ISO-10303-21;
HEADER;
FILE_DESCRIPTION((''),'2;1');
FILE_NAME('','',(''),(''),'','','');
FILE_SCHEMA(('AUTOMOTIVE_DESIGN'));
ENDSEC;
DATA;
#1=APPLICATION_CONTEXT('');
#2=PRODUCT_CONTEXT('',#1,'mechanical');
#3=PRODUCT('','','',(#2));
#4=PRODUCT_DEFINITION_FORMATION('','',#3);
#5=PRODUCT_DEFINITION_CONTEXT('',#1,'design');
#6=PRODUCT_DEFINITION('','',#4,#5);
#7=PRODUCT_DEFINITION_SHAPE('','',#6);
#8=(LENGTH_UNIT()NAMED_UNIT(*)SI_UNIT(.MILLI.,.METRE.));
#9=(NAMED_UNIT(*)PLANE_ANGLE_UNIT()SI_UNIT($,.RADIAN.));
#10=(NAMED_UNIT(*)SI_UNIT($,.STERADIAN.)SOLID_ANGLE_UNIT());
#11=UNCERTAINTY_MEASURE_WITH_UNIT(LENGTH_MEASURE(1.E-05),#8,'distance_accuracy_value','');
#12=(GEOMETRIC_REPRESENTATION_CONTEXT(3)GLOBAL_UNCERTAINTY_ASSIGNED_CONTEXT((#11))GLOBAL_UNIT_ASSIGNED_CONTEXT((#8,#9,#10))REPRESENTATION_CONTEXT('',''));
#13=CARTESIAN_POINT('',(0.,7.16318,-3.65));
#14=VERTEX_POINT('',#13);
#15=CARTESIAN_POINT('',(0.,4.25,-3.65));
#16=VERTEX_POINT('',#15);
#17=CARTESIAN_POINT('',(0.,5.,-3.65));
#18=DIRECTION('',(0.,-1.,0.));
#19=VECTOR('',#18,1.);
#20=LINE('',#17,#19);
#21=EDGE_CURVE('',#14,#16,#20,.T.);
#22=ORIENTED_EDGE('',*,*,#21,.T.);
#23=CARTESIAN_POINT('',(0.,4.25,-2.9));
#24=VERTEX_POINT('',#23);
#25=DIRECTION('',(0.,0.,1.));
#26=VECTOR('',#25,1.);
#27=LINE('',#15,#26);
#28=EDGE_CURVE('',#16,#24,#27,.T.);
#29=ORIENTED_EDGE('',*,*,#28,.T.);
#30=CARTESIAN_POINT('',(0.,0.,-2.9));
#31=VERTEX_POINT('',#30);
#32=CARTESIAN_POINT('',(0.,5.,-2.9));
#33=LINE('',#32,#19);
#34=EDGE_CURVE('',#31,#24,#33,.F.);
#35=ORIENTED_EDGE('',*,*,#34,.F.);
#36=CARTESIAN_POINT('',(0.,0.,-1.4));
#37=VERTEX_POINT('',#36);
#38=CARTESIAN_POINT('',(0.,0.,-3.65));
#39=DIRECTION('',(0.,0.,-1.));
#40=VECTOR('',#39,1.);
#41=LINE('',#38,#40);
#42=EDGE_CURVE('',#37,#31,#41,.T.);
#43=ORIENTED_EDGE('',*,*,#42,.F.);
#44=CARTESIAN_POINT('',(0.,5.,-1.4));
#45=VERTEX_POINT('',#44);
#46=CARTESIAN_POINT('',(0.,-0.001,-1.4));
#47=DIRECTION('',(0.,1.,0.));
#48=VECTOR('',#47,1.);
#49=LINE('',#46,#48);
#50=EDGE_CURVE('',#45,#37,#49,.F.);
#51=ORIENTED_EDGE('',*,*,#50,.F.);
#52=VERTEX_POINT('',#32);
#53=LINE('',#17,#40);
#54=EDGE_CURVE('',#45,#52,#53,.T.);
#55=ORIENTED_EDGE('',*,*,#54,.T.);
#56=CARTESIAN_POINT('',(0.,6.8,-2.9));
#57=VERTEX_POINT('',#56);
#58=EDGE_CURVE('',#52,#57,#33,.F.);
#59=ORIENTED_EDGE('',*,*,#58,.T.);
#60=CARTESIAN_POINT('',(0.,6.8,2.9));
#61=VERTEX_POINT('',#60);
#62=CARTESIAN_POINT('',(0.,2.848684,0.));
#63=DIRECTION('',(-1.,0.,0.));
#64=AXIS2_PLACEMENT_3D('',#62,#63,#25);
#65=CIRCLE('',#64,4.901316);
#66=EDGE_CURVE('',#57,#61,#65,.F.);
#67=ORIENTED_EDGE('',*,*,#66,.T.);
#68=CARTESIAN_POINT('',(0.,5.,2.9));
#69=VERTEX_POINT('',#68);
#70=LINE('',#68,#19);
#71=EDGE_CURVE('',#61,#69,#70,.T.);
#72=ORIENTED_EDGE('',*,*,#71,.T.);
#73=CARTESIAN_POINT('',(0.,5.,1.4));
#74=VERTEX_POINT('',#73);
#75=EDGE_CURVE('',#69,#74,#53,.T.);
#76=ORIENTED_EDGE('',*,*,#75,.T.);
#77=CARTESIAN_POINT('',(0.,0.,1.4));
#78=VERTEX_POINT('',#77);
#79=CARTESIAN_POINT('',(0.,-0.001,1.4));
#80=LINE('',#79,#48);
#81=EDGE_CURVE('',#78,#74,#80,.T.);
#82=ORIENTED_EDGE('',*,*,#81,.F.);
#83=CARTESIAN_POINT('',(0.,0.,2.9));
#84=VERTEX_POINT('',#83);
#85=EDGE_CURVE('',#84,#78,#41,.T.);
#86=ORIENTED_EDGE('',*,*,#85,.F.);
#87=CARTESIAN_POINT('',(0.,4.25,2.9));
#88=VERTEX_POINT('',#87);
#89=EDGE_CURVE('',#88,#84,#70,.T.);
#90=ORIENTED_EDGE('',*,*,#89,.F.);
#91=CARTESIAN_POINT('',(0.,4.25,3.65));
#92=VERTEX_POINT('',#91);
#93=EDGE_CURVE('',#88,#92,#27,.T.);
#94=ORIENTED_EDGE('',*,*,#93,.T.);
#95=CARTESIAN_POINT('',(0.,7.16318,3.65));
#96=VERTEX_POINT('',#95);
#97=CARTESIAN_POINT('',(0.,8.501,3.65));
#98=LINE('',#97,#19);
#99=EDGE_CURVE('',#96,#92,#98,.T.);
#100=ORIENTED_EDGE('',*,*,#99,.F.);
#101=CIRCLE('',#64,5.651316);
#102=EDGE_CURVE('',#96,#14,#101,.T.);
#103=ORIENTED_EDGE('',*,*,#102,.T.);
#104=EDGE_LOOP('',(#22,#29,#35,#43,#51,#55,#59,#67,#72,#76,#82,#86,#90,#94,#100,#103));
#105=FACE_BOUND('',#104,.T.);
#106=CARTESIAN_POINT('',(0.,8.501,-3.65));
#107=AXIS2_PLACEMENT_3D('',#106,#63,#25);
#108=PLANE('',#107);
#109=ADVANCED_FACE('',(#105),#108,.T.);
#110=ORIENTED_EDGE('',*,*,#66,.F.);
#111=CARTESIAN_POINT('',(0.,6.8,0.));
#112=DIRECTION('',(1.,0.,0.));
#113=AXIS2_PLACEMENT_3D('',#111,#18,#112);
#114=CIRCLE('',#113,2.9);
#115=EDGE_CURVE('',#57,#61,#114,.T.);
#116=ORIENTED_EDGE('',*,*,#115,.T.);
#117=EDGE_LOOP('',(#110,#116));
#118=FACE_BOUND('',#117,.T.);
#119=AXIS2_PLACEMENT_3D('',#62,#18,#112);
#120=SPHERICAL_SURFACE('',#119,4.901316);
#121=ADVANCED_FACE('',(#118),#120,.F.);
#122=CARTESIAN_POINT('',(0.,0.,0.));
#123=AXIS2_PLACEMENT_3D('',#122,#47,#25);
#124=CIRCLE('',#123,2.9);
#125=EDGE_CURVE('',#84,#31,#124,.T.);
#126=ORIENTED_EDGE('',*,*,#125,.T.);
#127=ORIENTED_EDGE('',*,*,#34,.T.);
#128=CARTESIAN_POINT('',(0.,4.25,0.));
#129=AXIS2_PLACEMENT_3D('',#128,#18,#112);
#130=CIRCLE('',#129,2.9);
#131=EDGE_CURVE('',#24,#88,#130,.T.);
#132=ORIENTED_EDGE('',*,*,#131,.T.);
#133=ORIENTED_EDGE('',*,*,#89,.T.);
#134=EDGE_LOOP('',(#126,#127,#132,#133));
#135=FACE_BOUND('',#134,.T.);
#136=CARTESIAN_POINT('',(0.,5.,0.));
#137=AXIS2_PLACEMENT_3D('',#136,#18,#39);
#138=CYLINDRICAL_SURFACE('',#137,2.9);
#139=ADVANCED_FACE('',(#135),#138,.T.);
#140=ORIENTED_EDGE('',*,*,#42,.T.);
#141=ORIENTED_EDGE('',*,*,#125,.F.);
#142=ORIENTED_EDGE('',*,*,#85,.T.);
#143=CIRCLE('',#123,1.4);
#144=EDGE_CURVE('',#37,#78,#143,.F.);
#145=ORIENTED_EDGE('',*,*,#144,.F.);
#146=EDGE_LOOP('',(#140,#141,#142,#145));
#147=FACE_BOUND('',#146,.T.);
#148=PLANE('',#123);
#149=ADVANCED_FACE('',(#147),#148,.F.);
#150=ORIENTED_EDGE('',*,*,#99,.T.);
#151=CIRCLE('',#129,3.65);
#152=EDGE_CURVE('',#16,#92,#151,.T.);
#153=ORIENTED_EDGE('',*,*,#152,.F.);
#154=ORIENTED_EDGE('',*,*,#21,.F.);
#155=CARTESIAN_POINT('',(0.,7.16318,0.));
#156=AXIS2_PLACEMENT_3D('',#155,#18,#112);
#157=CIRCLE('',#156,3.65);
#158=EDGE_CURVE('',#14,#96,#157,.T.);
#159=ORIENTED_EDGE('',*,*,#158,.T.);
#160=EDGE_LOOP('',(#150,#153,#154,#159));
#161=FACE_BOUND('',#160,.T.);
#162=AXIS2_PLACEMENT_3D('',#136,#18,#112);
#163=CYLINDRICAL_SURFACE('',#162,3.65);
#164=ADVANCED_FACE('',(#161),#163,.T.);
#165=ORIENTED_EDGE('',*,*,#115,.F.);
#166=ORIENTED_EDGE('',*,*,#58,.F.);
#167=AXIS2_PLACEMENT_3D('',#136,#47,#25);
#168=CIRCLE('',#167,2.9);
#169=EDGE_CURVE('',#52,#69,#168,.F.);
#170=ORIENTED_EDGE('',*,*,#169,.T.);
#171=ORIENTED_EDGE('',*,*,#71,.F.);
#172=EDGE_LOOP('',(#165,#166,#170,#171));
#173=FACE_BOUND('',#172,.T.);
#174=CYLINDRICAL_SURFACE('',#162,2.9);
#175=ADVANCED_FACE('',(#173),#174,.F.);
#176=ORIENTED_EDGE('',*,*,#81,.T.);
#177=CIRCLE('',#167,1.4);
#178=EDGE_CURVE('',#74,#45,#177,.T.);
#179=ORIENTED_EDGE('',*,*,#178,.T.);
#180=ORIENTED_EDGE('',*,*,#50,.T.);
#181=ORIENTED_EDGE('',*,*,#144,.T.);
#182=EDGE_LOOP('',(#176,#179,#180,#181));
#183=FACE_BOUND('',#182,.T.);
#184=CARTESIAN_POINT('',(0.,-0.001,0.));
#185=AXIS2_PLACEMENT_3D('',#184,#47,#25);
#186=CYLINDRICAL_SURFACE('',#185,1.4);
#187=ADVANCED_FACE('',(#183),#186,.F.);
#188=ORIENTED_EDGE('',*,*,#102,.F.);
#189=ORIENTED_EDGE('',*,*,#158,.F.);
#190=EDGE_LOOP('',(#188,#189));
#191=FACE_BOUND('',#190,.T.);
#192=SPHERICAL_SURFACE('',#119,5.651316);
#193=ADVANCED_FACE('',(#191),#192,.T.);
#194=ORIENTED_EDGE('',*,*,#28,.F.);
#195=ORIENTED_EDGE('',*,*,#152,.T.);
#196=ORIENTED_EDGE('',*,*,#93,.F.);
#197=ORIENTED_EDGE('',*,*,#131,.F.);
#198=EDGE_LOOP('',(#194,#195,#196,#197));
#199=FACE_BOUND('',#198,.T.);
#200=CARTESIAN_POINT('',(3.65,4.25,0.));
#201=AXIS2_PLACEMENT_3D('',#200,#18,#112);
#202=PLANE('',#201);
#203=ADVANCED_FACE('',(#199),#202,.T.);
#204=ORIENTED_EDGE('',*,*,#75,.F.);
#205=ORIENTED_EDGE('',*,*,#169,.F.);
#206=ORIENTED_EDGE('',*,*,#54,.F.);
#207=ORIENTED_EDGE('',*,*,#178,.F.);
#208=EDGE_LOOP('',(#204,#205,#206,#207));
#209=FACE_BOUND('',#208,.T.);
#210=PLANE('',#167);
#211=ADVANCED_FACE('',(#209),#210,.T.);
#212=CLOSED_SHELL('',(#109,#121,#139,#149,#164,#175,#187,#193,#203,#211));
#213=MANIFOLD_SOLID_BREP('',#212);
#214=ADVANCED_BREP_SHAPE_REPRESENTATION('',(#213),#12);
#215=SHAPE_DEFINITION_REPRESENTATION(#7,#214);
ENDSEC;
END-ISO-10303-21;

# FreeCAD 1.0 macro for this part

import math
import FreeCAD as App
import Part
import Sketcher

V = App.Vector
Q = App.Units.Quantity


def add_polygon(sketch, points):
    """Adds a closed chain of lines whose ends are joined by coincident constraints."""
    first, n = sketch.GeometryCount, len(points)
    for a, b in zip(points, points[1:] + points[:1]):
        sketch.addGeometry(Part.LineSegment(App.Vector(*a, 0), App.Vector(*b, 0)), False)
    for i in range(n):
        sketch.addConstraint(Sketcher.Constraint("Coincident", first + i, 2, first + (i + 1) % n, 1))

doc = App.newDocument("Part")
params = doc.addObject("Spreadsheet::Sheet", "Params")
for row, (alias, value) in enumerate([
    ("sketch1_diameter", "5.8 mm"),
    ("pad1_length", "5 mm"),
    ("sketch2_diameter", "2.8 mm"),
    ("sketch3_width", "0.75 mm"),
    ("sketch3_height", "2.55 mm"),
    ("revolution_angle", "360 deg"),
    ("sketch4_height", "7.3 mm"),
    ("sketch4_width", "3.65 mm"),
    ("pocket2_length", "8.5 mm"),
], start=1):
    params.set(f"A{row}", alias)
    params.set(f"B{row}", "=" + value)
    params.setAlias(f"B{row}", alias)

body = doc.addObject("PartDesign::Body", "Body")

sketch1 = body.newObject("Sketcher::SketchObject", "Sketch")
sketch1.AttachmentSupport = (doc.getObject("XZ_Plane"), [""])
sketch1.MapMode = "FlatFace"
sketch1.addGeometry(Part.Circle(V(0, 0, 0), V(0, 0, 1), 2.9), False)
sketch1.addConstraint([
    Sketcher.Constraint("Coincident", 0, 3, -1, 1),
    Sketcher.Constraint("Diameter", 0, Q("5.8 mm")),
])
sketch1.setExpression("Constraints[1]", "Params.sketch1_diameter")
pad1 = body.newObject("PartDesign::Pad", "Pad")
pad1.Profile = sketch1
pad1.setExpression("Length", "Params.pad1_length")
pad1.Reversed = True

sketch2 = body.newObject("Sketcher::SketchObject", "Sketch001")
sketch2.AttachmentSupport = (doc.getObject("XZ_Plane"), [""])
sketch2.MapMode = "FlatFace"
sketch2.AttachmentOffset = App.Placement(V(0, 0, -5), App.Rotation())
sketch2.addGeometry(Part.Circle(V(0, 0, 0), V(0, 0, 1), 1.4), False)
sketch2.addConstraint([
    Sketcher.Constraint("Coincident", 0, 3, -1, 1),
    Sketcher.Constraint("Diameter", 0, Q("2.8 mm")),
])
sketch2.setExpression("Constraints[1]", "Params.sketch2_diameter")
pocket1 = body.newObject("PartDesign::Pocket", "Pocket")
pocket1.Profile = sketch2
pocket1.Type = "UpToFirst"
pocket1.Reversed = True

sketch3 = body.newObject("Sketcher::SketchObject", "Sketch002")
sketch3.AttachmentSupport = (doc.getObject("XY_Plane"), [""])
sketch3.MapMode = "FlatFace"
sketch3.addGeometry([
    Part.LineSegment(V(2.9, 6.8, 0), V(2.9, 4.2, 0)),
    Part.LineSegment(V(2.9, 4.2, 0), V(3.6, 4.2, 0)),
    Part.LineSegment(V(3.6, 4.2, 0), V(3.6, 7.2, 0)),
    Part.ArcOfCircle(Part.Circle(V(0, 2.8, 0), V(0, 0, 1), 5.7), math.radians(50), math.radians(90)),
    Part.LineSegment(V(0, 8.5, 0), V(0, 7.8, 0)),
    Part.ArcOfCircle(Part.Circle(V(0, 2.8, 0), V(0, 0, 1), 4.9), math.radians(54), math.radians(90)),
], False)
sketch3.addConstraint([
    Sketcher.Constraint("Coincident", 0, 2, 1, 1),
    Sketcher.Constraint("Coincident", 1, 2, 2, 1),
    Sketcher.Constraint("Coincident", 2, 2, 3, 1),
    Sketcher.Constraint("Coincident", 3, 2, 4, 1),
    Sketcher.Constraint("Coincident", 4, 2, 5, 2),
    Sketcher.Constraint("Coincident", 5, 1, 0, 1),
    Sketcher.Constraint("Vertical", 0),
    Sketcher.Constraint("Horizontal", 1),
    Sketcher.Constraint("Vertical", 2),
    Sketcher.Constraint("Vertical", 4),
    Sketcher.Constraint("Coincident", 5, 3, 3, 3),
    Sketcher.Constraint("PointOnObject", 3, 3, -2),
    Sketcher.Constraint("PointOnObject", 3, 2, -2),
    Sketcher.Constraint("Equal", 1, 4),
    Sketcher.Constraint("DistanceX", 1, 1, 1, 2, Q("0.75 mm")),
    Sketcher.Constraint("DistanceY", 0, 2, 0, 1, Q("2.55 mm")),
    Sketcher.Constraint("DistanceX", -1, 1, 0, 2, Q("2.9 mm")),
    Sketcher.Constraint("DistanceY", -1, 1, 3, 2, Q("8.5 mm")),
    Sketcher.Constraint("DistanceY", -1, 1, 5, 1, Q("6.8 mm")),
])
sketch3.setExpression("Constraints[14]", "Params.sketch3_width")
sketch3.setExpression("Constraints[15]", "Params.sketch3_height")
revolution = body.newObject("PartDesign::Revolution", "Revolution")
revolution.Profile = sketch3
revolution.ReferenceAxis = (sketch3, ["V_Axis"])
revolution.setExpression("Angle", "Params.revolution_angle")

sketch4 = body.newObject("Sketcher::SketchObject", "Sketch003")
sketch4.AttachmentSupport = (doc.getObject("XZ_Plane"), [""])
sketch4.MapMode = "FlatFace"
add_polygon(sketch4, [(-3.6, -3.6), (-3.6, 3.6), (0, 3.6), (0, -3.6)])
sketch4.addConstraint([
    Sketcher.Constraint("Vertical", 0),
    Sketcher.Constraint("Horizontal", 1),
    Sketcher.Constraint("Vertical", 2),
    Sketcher.Constraint("Horizontal", 3),
    Sketcher.Constraint("Symmetric", 1, 2, 2, 2, -1, 1),
    Sketcher.Constraint("DistanceY", 0, 1, 0, 2, Q("7.3 mm")),
    Sketcher.Constraint("DistanceX", 1, 1, 1, 2, Q("3.65 mm")),
])
sketch4.setExpression("Constraints[9]", "Params.sketch4_height")
sketch4.setExpression("Constraints[10]", "Params.sketch4_width")
pocket2 = body.newObject("PartDesign::Pocket", "Pocket001")
pocket2.Profile = sketch4
pocket2.setExpression("Length", "Params.pocket2_length")

doc.recompute()
